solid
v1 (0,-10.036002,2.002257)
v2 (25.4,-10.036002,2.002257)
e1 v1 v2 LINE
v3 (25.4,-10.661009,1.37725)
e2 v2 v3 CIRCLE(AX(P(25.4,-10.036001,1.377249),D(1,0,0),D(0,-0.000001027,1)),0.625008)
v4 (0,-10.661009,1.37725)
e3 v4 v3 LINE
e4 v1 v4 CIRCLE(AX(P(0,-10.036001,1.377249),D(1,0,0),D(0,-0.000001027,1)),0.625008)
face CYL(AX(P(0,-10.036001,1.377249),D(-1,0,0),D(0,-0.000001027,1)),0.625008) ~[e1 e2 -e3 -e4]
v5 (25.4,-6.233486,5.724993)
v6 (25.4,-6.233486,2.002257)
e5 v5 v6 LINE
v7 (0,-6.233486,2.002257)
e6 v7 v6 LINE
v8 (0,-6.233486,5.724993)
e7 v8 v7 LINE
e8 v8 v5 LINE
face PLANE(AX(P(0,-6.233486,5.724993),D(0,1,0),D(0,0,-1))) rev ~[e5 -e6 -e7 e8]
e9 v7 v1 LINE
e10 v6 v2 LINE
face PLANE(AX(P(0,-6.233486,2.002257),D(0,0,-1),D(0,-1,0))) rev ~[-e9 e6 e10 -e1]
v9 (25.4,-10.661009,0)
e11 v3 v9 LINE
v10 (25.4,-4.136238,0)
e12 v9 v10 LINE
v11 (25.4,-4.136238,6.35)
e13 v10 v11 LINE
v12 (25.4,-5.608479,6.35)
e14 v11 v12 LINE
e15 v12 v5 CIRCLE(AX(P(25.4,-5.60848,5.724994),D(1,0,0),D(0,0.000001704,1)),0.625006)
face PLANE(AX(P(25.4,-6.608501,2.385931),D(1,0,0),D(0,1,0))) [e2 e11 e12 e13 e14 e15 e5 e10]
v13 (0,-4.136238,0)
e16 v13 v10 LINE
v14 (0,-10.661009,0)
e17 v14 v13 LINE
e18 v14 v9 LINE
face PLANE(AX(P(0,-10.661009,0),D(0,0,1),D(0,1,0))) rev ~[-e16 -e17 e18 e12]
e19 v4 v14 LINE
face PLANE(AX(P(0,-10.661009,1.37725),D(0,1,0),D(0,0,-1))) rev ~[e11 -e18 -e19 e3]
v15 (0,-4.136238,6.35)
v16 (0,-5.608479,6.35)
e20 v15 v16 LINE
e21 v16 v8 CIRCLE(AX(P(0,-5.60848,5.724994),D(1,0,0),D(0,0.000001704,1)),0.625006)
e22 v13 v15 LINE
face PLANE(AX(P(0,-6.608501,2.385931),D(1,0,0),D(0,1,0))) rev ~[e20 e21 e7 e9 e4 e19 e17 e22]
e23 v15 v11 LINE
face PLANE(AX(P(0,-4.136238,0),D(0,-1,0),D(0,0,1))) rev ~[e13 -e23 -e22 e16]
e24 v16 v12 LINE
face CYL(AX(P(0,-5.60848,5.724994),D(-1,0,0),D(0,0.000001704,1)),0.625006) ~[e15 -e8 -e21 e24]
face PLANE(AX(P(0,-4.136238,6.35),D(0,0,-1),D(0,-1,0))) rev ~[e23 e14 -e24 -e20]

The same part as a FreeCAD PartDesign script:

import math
import FreeCAD as App
import Part
import Sketcher

V = App.Vector
Q = App.Units.Quantity

doc = App.newDocument("Part")
params = doc.addObject("Spreadsheet::Sheet", "Params")
for row, (alias, value) in enumerate([
    ("sketch1_height", "0.25 in"),
    ("pad1_length", "1 in"),
], start=1):
    params.set(f"A{row}", alias)
    params.set(f"B{row}", "=" + value)
    params.setAlias(f"B{row}", alias)

body = doc.addObject("PartDesign::Body", "Body")

# Sketch on YZ plane
sketch1 = doc.addObject("Sketcher::SketchObject", "Sketch")
body.addObject(sketch1)
sketch1.AttachmentSupport = (doc.YZ_Plane, [""])
sketch1.MapMode = "FlatFace"
sketch1.addGeometry([
    Part.LineSegment(V(-10.7, 1.4, 0), V(-10.7, 0, 0)),  # 0
    Part.LineSegment(V(-10.7, 0, 0), V(-4.1, 0, 0)),  # 1
    Part.LineSegment(V(-4.1, 0, 0), V(-4.1, 6.3, 0)),  # 2
    Part.LineSegment(V(-4.1, 6.3, 0), V(-5.6, 6.3, 0)),  # 3
    Part.ArcOfCircle(Part.Circle(V(-5.6, 5.7, 0), V(0, 0, 1), 0.6), math.radians(90), math.radians(180)),  # 4
    Part.LineSegment(V(-6.2, 5.7, 0), V(-6.2, 2, 0)),  # 5
    Part.LineSegment(V(-6.2, 2, 0), V(-10, 2, 0)),  # 6
    Part.ArcOfCircle(Part.Circle(V(-10, 1.4, 0), V(0, 0, 1), 0.6), math.radians(90), math.radians(180)),  # 7
], False)
sketch1.addConstraint([
    Sketcher.Constraint("Coincident", 0, 2, 1, 1),
    Sketcher.Constraint("Coincident", 1, 2, 2, 1),
    Sketcher.Constraint("Coincident", 2, 2, 3, 1),
    Sketcher.Constraint("Tangent", 3, 2, 4, 1),
    Sketcher.Constraint("Tangent", 4, 2, 5, 1),
    Sketcher.Constraint("Coincident", 5, 2, 6, 1),
    Sketcher.Constraint("Tangent", 6, 2, 7, 1),
    Sketcher.Constraint("Tangent", 7, 2, 0, 1),
    Sketcher.Constraint("Vertical", 0),
    Sketcher.Constraint("Horizontal", 1),
    Sketcher.Constraint("Vertical", 2),
    Sketcher.Constraint("Horizontal", 3),
    Sketcher.Constraint("Vertical", 5),
    Sketcher.Constraint("Horizontal", 6),
    Sketcher.Constraint("Equal", 4, 7),
    Sketcher.Constraint("PointOnObject", 0, 2, -1),
    Sketcher.Constraint("DistanceY", 2, 1, 2, 2, Q("0.25 in")),
    Sketcher.Constraint("Radius", 4, Q("0.625006 mm")),
    Sketcher.Constraint("DistanceX", 1, 1, 1, 2, Q("6.524771 mm")),
    Sketcher.Constraint("DistanceX", 3, 2, 3, 1, Q("1.472241 mm")),
    Sketcher.Constraint("DistanceY", 0, 2, 0, 1, Q("1.37725 mm")),
    Sketcher.Constraint("DistanceX", 7, 3, -1, 1, Q("10.036001 mm")),
])
sketch1.setExpression("Constraints[16]", "Params.sketch1_height")
pad1 = doc.addObject("PartDesign::Pad", "Pad")
body.addObject(pad1)
pad1.Profile = sketch1
pad1.setExpression("Length", "Params.pad1_length")

doc.recompute()
